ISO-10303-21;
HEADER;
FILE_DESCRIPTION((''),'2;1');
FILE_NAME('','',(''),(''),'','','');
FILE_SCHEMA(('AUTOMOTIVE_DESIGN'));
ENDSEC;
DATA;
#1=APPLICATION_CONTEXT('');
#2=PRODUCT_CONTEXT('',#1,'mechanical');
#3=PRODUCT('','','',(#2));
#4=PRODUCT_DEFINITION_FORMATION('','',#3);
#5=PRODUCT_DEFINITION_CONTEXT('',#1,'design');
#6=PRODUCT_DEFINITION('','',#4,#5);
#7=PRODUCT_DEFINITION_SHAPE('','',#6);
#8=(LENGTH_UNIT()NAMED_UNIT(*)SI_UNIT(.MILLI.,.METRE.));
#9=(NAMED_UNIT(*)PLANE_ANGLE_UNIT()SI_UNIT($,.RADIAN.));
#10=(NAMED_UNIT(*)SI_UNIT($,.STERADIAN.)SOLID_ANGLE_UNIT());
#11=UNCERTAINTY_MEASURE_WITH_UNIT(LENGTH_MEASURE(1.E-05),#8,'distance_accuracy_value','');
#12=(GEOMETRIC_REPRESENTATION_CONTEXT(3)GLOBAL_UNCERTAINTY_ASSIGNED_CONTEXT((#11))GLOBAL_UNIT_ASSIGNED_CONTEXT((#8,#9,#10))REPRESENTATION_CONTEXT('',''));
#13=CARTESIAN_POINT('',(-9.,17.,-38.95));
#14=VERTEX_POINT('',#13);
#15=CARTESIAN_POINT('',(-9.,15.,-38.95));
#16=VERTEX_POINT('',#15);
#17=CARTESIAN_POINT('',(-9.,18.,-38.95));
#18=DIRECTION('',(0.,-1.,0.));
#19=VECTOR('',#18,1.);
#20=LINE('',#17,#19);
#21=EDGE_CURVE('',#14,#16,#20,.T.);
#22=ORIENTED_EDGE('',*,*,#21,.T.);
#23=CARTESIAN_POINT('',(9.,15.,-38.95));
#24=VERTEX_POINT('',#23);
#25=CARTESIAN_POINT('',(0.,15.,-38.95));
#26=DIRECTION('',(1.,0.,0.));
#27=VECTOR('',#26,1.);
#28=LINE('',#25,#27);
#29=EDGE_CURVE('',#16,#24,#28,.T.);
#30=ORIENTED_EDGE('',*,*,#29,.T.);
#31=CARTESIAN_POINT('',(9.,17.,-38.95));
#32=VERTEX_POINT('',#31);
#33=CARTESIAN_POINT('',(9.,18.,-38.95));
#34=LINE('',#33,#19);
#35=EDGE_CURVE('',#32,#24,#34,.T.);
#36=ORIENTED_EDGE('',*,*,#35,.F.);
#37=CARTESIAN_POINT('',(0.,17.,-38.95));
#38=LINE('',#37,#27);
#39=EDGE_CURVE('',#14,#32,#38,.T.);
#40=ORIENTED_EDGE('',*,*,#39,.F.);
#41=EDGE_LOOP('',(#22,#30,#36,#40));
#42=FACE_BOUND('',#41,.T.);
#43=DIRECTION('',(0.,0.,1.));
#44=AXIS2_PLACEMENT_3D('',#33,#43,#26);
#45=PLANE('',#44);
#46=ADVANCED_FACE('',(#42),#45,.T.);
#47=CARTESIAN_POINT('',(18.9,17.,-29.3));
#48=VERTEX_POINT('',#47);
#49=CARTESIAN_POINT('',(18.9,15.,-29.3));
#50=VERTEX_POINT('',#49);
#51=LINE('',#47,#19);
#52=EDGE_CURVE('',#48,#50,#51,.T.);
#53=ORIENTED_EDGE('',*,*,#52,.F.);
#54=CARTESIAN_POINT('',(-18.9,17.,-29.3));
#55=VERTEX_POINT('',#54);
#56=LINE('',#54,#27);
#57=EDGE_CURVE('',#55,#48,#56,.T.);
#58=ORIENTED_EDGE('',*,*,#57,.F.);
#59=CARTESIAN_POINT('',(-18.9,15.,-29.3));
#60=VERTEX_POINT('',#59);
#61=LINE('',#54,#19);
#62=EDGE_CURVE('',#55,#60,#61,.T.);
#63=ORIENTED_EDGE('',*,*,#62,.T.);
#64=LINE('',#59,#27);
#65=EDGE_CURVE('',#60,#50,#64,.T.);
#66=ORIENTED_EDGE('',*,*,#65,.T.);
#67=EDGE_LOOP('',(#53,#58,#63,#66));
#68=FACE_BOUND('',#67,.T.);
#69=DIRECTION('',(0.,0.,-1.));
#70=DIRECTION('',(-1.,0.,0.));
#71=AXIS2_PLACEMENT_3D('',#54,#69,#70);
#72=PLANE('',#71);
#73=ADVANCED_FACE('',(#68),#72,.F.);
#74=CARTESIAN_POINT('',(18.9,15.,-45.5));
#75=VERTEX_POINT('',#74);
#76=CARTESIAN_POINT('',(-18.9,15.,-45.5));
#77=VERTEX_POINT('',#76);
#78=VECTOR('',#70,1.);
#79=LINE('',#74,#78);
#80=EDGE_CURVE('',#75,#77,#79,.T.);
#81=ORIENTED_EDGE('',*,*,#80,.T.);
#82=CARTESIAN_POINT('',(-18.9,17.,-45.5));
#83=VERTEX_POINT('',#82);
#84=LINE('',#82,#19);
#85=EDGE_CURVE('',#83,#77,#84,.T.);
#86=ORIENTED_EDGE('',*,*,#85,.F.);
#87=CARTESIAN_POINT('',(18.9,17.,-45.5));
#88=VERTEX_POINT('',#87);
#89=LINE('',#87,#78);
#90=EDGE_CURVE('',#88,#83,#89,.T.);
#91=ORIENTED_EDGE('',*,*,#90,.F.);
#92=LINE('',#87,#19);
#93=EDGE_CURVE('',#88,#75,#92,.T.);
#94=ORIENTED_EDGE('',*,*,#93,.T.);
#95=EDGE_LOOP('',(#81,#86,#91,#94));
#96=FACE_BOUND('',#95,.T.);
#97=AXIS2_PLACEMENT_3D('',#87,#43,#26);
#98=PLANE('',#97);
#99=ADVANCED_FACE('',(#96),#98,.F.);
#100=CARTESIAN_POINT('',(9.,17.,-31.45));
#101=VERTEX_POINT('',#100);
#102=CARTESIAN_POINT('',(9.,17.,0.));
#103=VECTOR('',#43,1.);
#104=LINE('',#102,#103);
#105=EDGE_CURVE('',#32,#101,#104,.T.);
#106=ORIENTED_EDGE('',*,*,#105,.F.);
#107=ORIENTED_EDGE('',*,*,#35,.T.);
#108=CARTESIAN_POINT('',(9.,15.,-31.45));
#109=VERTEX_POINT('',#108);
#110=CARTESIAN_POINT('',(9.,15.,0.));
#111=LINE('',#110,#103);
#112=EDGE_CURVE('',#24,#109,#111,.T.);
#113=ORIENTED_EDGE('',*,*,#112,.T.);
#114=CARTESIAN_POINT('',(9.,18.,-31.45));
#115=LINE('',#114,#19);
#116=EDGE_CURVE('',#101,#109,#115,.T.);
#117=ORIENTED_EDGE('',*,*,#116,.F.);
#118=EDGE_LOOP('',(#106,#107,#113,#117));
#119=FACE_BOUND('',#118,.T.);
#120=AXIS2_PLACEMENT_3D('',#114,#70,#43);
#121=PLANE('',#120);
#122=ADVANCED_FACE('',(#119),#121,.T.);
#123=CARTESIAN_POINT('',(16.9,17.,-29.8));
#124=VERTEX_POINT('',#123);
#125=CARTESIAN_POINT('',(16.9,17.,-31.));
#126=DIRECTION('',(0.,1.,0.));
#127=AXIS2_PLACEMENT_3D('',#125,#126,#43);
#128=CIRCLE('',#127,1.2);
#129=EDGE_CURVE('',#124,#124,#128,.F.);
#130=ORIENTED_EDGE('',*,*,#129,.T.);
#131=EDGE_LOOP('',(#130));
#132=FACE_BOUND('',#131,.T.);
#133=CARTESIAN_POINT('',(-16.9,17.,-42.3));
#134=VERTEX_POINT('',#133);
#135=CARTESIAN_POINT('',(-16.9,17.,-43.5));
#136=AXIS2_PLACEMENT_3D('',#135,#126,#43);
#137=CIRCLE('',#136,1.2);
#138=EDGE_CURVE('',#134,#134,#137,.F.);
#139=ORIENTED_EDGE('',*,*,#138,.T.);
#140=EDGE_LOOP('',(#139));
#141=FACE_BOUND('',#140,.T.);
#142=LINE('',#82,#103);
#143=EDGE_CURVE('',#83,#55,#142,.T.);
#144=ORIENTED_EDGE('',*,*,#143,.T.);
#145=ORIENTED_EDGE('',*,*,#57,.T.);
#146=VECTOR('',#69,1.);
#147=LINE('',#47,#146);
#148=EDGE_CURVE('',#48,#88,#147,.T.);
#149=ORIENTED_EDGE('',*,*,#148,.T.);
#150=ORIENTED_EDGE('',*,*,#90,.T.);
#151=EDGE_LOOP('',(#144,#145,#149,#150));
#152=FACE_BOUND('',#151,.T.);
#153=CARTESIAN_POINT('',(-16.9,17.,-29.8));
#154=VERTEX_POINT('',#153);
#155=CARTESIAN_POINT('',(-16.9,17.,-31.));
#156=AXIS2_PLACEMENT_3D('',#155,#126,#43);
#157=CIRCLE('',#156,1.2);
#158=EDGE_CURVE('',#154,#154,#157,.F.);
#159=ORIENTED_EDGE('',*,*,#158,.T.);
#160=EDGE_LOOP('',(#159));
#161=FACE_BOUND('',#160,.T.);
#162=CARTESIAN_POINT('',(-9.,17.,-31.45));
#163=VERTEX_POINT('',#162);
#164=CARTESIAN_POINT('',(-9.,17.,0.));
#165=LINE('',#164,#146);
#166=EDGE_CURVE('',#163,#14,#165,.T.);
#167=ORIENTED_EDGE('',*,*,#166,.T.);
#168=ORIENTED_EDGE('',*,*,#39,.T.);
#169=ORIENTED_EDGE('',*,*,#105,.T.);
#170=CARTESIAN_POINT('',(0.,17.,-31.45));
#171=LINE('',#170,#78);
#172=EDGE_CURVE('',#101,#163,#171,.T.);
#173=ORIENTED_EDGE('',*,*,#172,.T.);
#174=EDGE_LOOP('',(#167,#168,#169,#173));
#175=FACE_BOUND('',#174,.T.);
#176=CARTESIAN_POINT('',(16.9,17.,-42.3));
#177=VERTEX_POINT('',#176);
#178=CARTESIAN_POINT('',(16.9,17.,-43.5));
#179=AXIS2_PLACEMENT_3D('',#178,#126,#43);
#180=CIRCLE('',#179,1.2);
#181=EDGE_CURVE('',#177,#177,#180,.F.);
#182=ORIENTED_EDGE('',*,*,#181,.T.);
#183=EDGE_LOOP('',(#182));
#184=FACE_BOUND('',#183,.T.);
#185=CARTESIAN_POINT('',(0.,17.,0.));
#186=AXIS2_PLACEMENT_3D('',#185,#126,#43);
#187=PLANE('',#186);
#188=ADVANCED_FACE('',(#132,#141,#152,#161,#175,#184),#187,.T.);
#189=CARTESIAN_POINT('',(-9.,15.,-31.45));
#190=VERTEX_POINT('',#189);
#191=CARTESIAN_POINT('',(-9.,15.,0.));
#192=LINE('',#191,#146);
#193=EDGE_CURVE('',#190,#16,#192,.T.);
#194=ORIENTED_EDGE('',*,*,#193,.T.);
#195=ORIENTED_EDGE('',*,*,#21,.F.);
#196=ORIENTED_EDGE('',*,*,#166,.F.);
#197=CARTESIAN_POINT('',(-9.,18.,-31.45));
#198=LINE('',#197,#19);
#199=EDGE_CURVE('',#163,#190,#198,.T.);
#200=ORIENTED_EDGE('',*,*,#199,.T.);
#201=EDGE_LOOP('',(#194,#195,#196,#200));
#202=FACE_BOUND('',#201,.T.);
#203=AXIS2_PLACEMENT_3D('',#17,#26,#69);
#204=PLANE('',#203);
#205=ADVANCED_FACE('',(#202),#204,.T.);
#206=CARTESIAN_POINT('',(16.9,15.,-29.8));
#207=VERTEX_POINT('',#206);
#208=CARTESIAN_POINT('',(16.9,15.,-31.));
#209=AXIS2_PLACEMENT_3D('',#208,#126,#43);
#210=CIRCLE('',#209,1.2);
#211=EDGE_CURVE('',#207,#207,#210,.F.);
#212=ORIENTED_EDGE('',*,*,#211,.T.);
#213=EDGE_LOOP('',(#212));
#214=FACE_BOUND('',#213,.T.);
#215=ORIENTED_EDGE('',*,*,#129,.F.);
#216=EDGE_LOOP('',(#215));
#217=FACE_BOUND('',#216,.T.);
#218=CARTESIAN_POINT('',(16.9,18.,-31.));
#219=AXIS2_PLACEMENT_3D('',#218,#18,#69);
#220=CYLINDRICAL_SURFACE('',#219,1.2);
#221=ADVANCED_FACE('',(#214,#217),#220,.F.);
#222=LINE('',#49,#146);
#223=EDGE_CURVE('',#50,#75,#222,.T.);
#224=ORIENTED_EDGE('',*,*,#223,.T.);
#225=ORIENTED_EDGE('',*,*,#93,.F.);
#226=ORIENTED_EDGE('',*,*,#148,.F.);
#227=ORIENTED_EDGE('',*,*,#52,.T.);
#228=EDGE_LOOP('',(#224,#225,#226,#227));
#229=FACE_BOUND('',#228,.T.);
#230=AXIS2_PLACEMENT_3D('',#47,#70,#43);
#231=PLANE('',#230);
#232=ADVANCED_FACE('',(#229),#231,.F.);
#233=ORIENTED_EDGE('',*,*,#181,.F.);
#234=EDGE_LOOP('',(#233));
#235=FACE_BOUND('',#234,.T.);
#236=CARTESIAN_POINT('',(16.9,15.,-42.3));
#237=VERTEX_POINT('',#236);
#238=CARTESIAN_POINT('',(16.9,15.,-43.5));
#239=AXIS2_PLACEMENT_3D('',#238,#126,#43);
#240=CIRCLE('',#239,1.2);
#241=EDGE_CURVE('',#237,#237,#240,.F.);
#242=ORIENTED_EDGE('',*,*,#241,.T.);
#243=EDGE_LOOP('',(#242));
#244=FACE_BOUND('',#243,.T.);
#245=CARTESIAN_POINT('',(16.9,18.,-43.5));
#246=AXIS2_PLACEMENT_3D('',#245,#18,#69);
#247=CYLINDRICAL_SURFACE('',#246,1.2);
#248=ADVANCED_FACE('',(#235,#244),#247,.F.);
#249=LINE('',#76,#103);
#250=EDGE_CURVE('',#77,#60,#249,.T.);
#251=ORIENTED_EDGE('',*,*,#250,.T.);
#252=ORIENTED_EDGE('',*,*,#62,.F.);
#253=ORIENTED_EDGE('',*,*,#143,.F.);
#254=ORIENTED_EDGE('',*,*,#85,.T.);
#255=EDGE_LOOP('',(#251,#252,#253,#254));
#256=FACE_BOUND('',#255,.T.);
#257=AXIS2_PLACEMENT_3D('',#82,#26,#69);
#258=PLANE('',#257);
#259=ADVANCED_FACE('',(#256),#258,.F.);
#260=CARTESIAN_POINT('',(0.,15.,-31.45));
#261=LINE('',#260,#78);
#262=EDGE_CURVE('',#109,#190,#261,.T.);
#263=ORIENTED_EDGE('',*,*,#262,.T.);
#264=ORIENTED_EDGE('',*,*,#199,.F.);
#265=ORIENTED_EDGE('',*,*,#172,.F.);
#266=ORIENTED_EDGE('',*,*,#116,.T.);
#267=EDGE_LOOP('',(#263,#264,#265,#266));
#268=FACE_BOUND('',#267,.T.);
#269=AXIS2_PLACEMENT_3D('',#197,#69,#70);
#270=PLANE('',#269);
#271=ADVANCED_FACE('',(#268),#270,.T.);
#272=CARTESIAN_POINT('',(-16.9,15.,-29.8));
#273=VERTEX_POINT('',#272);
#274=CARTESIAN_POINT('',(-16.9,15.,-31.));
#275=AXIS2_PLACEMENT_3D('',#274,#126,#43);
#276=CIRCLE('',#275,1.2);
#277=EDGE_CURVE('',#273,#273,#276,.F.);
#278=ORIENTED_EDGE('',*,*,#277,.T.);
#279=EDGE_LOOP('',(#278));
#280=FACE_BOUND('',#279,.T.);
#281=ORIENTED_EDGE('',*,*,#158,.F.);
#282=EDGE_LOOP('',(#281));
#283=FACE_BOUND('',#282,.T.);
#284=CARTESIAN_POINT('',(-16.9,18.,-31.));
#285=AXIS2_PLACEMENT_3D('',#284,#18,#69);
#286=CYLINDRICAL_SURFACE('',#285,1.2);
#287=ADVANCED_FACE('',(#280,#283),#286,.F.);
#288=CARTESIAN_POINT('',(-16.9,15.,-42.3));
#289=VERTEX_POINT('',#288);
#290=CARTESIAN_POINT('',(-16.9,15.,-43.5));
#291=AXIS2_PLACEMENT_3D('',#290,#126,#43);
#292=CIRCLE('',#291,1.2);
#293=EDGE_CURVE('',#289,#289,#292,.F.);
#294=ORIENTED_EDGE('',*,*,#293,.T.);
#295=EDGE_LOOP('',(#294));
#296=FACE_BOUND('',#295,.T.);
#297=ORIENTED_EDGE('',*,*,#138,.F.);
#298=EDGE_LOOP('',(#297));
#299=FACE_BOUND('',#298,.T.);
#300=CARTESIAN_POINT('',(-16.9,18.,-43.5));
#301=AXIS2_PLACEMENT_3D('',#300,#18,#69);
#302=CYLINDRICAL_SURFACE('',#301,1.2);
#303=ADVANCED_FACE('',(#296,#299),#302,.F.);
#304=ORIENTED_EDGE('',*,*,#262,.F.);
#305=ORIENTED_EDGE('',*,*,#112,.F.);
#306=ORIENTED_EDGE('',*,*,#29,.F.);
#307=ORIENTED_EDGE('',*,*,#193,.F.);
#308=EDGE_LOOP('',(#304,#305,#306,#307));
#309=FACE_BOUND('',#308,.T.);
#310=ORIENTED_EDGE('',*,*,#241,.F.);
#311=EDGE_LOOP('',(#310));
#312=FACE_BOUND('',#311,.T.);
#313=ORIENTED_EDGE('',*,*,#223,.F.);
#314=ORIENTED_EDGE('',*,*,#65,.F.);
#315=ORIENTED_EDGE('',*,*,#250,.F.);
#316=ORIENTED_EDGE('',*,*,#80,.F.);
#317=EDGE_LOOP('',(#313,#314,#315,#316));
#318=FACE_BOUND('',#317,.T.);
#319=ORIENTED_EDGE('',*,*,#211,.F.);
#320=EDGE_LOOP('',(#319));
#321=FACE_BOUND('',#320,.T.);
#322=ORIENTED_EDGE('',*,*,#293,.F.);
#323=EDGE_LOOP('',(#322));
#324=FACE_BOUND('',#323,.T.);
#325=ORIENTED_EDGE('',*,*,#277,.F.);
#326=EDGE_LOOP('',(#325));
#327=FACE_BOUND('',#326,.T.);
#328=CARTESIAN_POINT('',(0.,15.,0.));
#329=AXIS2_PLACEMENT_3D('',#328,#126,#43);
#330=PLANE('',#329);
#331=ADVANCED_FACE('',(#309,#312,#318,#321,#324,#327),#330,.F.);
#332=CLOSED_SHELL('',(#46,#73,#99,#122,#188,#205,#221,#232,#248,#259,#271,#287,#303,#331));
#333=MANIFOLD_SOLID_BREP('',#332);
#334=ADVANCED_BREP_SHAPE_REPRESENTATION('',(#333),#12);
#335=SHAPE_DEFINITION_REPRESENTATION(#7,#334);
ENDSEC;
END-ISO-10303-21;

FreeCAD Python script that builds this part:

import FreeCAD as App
import Part
import Sketcher
from FreeCAD import Vector


def add_polygon(sketch, points):
    """Adds a closed chain of lines whose ends are joined by coincident constraints."""
    first, n = sketch.GeometryCount, len(points)
    for a, b in zip(points, points[1:] + points[:1]):
        sketch.addGeometry(Part.LineSegment(App.Vector(*a, 0), App.Vector(*b, 0)), False)
    for i in range(n):
        sketch.addConstraint(Sketcher.Constraint("Coincident", first + i, 2, first + (i + 1) % n, 1))

doc = App.newDocument("Part")
params = doc.addObject("Spreadsheet::Sheet", "Params")
for row, (alias, value) in enumerate([
    ("sketch1_width", "37.8 mm"),
    ("sketch1_height", "16.2 mm"),
    ("pad1_length", "2 mm"),
    ("sketch2_width", "18 mm"),
    ("sketch2_height", "7.5 mm"),
    ("pocket1_length", "4 mm"),
    ("sketch3_diameter", "2.4 mm"),
    ("pocket2_length", "4 mm"),
], start=1):
    params.set(f"A{row}", alias)
    params.set(f"B{row}", "=" + value)
    params.setAlias(f"B{row}", alias)

body = doc.addObject("PartDesign::Body", "Body")

# Sketch on XZ plane
sketch1 = body.newObject("Sketcher::SketchObject", "Sketch")
sketch1.AttachmentSupport = (doc.getObject("XZ_Plane"), [""])
sketch1.MapMode = "FlatFace"
sketch1.AttachmentOffset = App.Placement(Vector(0, 0, -15), App.Rotation())
add_polygon(sketch1, [(-18.9, -45.5), (-18.9, -29.3), (18.9, -29.3), (18.9, -45.5)])  # lines 0-3
sketch1.addConstraint(Sketcher.Constraint("Vertical", 0))
sketch1.addConstraint(Sketcher.Constraint("Horizontal", 1))
sketch1.addConstraint(Sketcher.Constraint("Vertical", 2))
sketch1.addConstraint(Sketcher.Constraint("Horizontal", 3))
sketch1.addConstraint(Sketcher.Constraint("DistanceX", 1, 1, 1, 2, 37.8))
sketch1.addConstraint(Sketcher.Constraint("DistanceY", 0, 1, 0, 2, 16.2))
sketch1.addConstraint(Sketcher.Constraint("DistanceX", 0, 2, -1, 1, 18.9))
sketch1.addConstraint(Sketcher.Constraint("DistanceY", 0, 2, -1, 1, 29.3))
sketch1.setExpression("Constraints[8]", "Params.sketch1_width")
sketch1.setExpression("Constraints[9]", "Params.sketch1_height")
pad1 = body.newObject("PartDesign::Pad", "Pad")
pad1.Profile = sketch1
pad1.setExpression("Length", "Params.pad1_length")
pad1.Reversed = True

# Sketch on XZ plane
sketch2 = body.newObject("Sketcher::SketchObject", "Sketch001")
sketch2.AttachmentSupport = (doc.getObject("XZ_Plane"), [""])
sketch2.MapMode = "FlatFace"
sketch2.AttachmentOffset = App.Placement(Vector(0, 0, -14), App.Rotation())
add_polygon(sketch2, [(-9, -38.95), (-9, -31.45), (9, -31.45), (9, -38.95)])  # lines 0-3
sketch2.addConstraint(Sketcher.Constraint("Vertical", 0))
sketch2.addConstraint(Sketcher.Constraint("Horizontal", 1))
sketch2.addConstraint(Sketcher.Constraint("Vertical", 2))
sketch2.addConstraint(Sketcher.Constraint("Horizontal", 3))
sketch2.addConstraint(Sketcher.Constraint("DistanceX", 1, 1, 1, 2, 18.0))
sketch2.addConstraint(Sketcher.Constraint("DistanceY", 0, 1, 0, 2, 7.5))
sketch2.addConstraint(Sketcher.Constraint("DistanceX", 0, 2, -1, 1, 9.0))
sketch2.addConstraint(Sketcher.Constraint("DistanceY", 0, 2, -1, 1, 31.45))
sketch2.setExpression("Constraints[8]", "Params.sketch2_width")
sketch2.setExpression("Constraints[9]", "Params.sketch2_height")
pocket1 = body.newObject("PartDesign::Pocket", "Pocket")
pocket1.Profile = sketch2
pocket1.setExpression("Length", "Params.pocket1_length")

# Sketch on XZ plane
sketch3 = body.newObject("Sketcher::SketchObject", "Sketch002")
sketch3.AttachmentSupport = (doc.getObject("XZ_Plane"), [""])
sketch3.MapMode = "FlatFace"
sketch3.AttachmentOffset = App.Placement(Vector(0, 0, -14), App.Rotation())
sketch3.addGeometry(Part.Circle(Vector(-16.9, -31, 0), Vector(0, 0, 1), 1.2), False)
sketch3.addGeometry(Part.Circle(Vector(-16.9, -43.5, 0), Vector(0, 0, 1), 1.2), False)
sketch3.addGeometry(Part.Circle(Vector(16.9, -31, 0), Vector(0, 0, 1), 1.2), False)
sketch3.addGeometry(Part.Circle(Vector(16.9, -43.5, 0), Vector(0, 0, 1), 1.2), False)
sketch3.addConstraint(Sketcher.Constraint("Equal", 0, 1))
sketch3.addConstraint(Sketcher.Constraint("Equal", 1, 2))
sketch3.addConstraint(Sketcher.Constraint("Equal", 2, 3))
sketch3.addConstraint(Sketcher.Constraint("Symmetric", 0, 3, 2, 3, -2))
sketch3.addConstraint(Sketcher.Constraint("Symmetric", 1, 3, 3, 3, -2))
sketch3.addConstraint(Sketcher.Constraint("Vertical", 0, 3, 1, 3))
sketch3.addConstraint(Sketcher.Constraint("Diameter", 0, 2.4))
sketch3.addConstraint(Sketcher.Constraint("DistanceY", 0, 3, -1, 1, 31.0))
sketch3.addConstraint(Sketcher.Constraint("DistanceX", 0, 3, -1, 1, 16.9))
sketch3.addConstraint(Sketcher.Constraint("DistanceY", 1, 3, -1, 1, 43.5))
sketch3.setExpression("Constraints[6]", "Params.sketch3_diameter")
pocket2 = body.newObject("PartDesign::Pocket", "Pocket001")
pocket2.Profile = sketch3
pocket2.setExpression("Length", "Params.pocket2_length")

doc.recompute()
